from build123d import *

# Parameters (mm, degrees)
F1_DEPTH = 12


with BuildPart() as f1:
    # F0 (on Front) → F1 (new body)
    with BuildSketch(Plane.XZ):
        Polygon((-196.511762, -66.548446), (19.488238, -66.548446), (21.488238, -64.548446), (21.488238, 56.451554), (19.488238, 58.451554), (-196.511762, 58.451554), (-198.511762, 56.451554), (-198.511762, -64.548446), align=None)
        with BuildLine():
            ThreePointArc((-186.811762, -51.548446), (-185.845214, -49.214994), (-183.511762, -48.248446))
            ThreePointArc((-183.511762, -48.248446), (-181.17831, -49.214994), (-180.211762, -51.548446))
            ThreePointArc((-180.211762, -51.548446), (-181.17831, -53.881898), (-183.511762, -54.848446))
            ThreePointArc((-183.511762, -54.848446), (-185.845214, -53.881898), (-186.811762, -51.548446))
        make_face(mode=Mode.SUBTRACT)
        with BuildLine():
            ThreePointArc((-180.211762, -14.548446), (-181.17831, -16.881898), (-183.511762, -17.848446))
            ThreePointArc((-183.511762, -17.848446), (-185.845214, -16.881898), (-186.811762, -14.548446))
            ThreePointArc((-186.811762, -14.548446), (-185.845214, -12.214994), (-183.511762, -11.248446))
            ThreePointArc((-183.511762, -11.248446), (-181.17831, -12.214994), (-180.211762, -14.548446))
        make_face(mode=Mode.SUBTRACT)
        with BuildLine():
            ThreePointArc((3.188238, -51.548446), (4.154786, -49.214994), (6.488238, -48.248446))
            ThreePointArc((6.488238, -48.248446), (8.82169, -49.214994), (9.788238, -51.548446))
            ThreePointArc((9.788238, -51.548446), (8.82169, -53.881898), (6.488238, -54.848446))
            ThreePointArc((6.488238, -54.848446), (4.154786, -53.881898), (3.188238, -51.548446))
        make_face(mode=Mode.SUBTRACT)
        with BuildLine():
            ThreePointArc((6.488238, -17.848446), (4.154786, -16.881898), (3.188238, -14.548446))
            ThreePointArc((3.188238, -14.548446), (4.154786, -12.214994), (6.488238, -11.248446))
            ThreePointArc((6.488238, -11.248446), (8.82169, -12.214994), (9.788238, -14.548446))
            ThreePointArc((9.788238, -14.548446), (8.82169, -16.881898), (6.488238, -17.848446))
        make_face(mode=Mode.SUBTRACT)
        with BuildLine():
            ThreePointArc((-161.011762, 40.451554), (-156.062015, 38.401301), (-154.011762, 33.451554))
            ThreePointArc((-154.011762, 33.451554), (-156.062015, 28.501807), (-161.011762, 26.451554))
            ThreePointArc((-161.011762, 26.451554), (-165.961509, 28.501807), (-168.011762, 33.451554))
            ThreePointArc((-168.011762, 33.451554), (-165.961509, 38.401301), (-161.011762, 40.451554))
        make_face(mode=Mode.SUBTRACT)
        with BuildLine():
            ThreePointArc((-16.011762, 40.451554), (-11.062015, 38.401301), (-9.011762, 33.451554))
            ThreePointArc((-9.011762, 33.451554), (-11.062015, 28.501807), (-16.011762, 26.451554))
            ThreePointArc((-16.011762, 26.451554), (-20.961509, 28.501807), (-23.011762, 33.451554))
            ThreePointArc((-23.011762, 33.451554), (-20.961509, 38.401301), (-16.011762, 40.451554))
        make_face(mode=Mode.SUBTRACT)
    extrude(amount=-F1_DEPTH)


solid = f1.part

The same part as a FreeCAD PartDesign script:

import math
import FreeCAD as App
import Part
import Sketcher

doc = App.newDocument("Part")
body = doc.addObject("PartDesign::Body", "Body")

# Sketch on XZ plane
sketch1 = body.newObject("Sketcher::SketchObject", "Sketch")
sketch1.AttachmentSupport = (doc.getObject("XZ_Plane"), [""])
sketch1.MapMode = "FlatFace"
sketch1.addGeometry([
    Part.LineSegment(App.Vector(-196.5, -66.5, 0), App.Vector(19.5, -66.5, 0)),  # 0
    Part.LineSegment(App.Vector(19.5, -66.5, 0), App.Vector(21.5, -64.5, 0)),  # 1
    Part.LineSegment(App.Vector(21.5, -64.5, 0), App.Vector(21.5, 56.5, 0)),  # 2
    Part.LineSegment(App.Vector(21.5, 56.5, 0), App.Vector(19.5, 58.5, 0)),  # 3
    Part.LineSegment(App.Vector(19.5, 58.5, 0), App.Vector(-196.5, 58.5, 0)),  # 4
    Part.LineSegment(App.Vector(-196.5, 58.5, 0), App.Vector(-198.5, 56.5, 0)),  # 5
    Part.LineSegment(App.Vector(-198.5, 56.5, 0), App.Vector(-198.5, -64.5, 0)),  # 6
    Part.LineSegment(App.Vector(-198.5, -64.5, 0), App.Vector(-196.5, -66.5, 0)),  # 7
    Part.ArcOfCircle(Part.Circle(App.Vector(-183.5, -51.5, 0), App.Vector(0, 0, 1), 3.3), math.radians(-180), math.radians(-90)),  # 8
    Part.ArcOfCircle(Part.Circle(App.Vector(-183.5, -51.5, 0), App.Vector(0, 0, 1), 3.3), math.radians(90), math.radians(180)),  # 9
    Part.ArcOfCircle(Part.Circle(App.Vector(-183.5, -51.5, 0), App.Vector(0, 0, 1), 3.3), math.radians(0), math.radians(90)),  # 10
    Part.ArcOfCircle(Part.Circle(App.Vector(-183.5, -51.5, 0), App.Vector(0, 0, 1), 3.3), math.radians(-90), math.radians(0)),  # 11
    Part.ArcOfCircle(Part.Circle(App.Vector(-183.5, -14.5, 0), App.Vector(0, 0, 1), 3.3), math.radians(0), math.radians(90)),  # 12
    Part.ArcOfCircle(Part.Circle(App.Vector(-183.5, -14.5, 0), App.Vector(0, 0, 1), 3.3), math.radians(-90), math.radians(0)),  # 13
    Part.ArcOfCircle(Part.Circle(App.Vector(-183.5, -14.5, 0), App.Vector(0, 0, 1), 3.3), math.radians(-180), math.radians(-90)),  # 14
    Part.ArcOfCircle(Part.Circle(App.Vector(-183.5, -14.5, 0), App.Vector(0, 0, 1), 3.3), math.radians(90), math.radians(180)),  # 15
    Part.ArcOfCircle(Part.Circle(App.Vector(6.5, -51.5, 0), App.Vector(0, 0, 1), 3.3), math.radians(-180), math.radians(-90)),  # 16
    Part.ArcOfCircle(Part.Circle(App.Vector(6.5, -51.5, 0), App.Vector(0, 0, 1), 3.3), math.radians(90), math.radians(180)),  # 17
    Part.ArcOfCircle(Part.Circle(App.Vector(6.5, -51.5, 0), App.Vector(0, 0, 1), 3.3), math.radians(0), math.radians(90)),  # 18
    Part.ArcOfCircle(Part.Circle(App.Vector(6.5, -51.5, 0), App.Vector(0, 0, 1), 3.3), math.radians(-90), math.radians(0)),  # 19
    Part.ArcOfCircle(Part.Circle(App.Vector(6.5, -14.5, 0), App.Vector(0, 0, 1), 3.3), math.radians(-90), math.radians(0)),  # 20
    Part.ArcOfCircle(Part.Circle(App.Vector(6.5, -14.5, 0), App.Vector(0, 0, 1), 3.3), math.radians(-180), math.radians(-90)),  # 21
    Part.ArcOfCircle(Part.Circle(App.Vector(6.5, -14.5, 0), App.Vector(0, 0, 1), 3.3), math.radians(90), math.radians(180)),  # 22
    Part.ArcOfCircle(Part.Circle(App.Vector(6.5, -14.5, 0), App.Vector(0, 0, 1), 3.3), math.radians(0), math.radians(90)),  # 23
    Part.ArcOfCircle(Part.Circle(App.Vector(-161, 33.5, 0), App.Vector(0, 0, 1), 7), math.radians(90), math.radians(180)),  # 24
    Part.ArcOfCircle(Part.Circle(App.Vector(-161, 33.5, 0), App.Vector(0, 0, 1), 7), math.radians(0), math.radians(90)),  # 25
    Part.ArcOfCircle(Part.Circle(App.Vector(-161, 33.5, 0), App.Vector(0, 0, 1), 7), math.radians(-90), math.radians(0)),  # 26
    Part.ArcOfCircle(Part.Circle(App.Vector(-161, 33.5, 0), App.Vector(0, 0, 1), 7), math.radians(-180), math.radians(-90)),  # 27
    Part.ArcOfCircle(Part.Circle(App.Vector(-16, 33.5, 0), App.Vector(0, 0, 1), 7), math.radians(90), math.radians(180)),  # 28
    Part.ArcOfCircle(Part.Circle(App.Vector(-16, 33.5, 0), App.Vector(0, 0, 1), 7), math.radians(0), math.radians(90)),  # 29
    Part.ArcOfCircle(Part.Circle(App.Vector(-16, 33.5, 0), App.Vector(0, 0, 1), 7), math.radians(-90), math.radians(0)),  # 30
    Part.ArcOfCircle(Part.Circle(App.Vector(-16, 33.5, 0), App.Vector(0, 0, 1), 7), math.radians(-180), math.radians(-90)),  # 31
], False)
sketch1.addConstraint([
    Sketcher.Constraint("Coincident", 0, 2, 1, 1),
    Sketcher.Constraint("Coincident", 1, 2, 2, 1),
    Sketcher.Constraint("Coincident", 2, 2, 3, 1),
    Sketcher.Constraint("Coincident", 3, 2, 4, 1),
    Sketcher.Constraint("Coincident", 4, 2, 5, 1),
    Sketcher.Constraint("Coincident", 5, 2, 6, 1),
    Sketcher.Constraint("Coincident", 6, 2, 7, 1),
    Sketcher.Constraint("Coincident", 7, 2, 0, 1),
    Sketcher.Constraint("Tangent", 8, 1, 9, 2),
    Sketcher.Constraint("Tangent", 9, 1, 10, 2),
    Sketcher.Constraint("Tangent", 10, 1, 11, 2),
    Sketcher.Constraint("Tangent", 11, 1, 8, 2),
    Sketcher.Constraint("Tangent", 12, 1, 13, 2),
    Sketcher.Constraint("Tangent", 13, 1, 14, 2),
    Sketcher.Constraint("Tangent", 14, 1, 15, 2),
    Sketcher.Constraint("Tangent", 15, 1, 12, 2),
    Sketcher.Constraint("Tangent", 16, 1, 17, 2),
    Sketcher.Constraint("Tangent", 17, 1, 18, 2),
    Sketcher.Constraint("Tangent", 18, 1, 19, 2),
    Sketcher.Constraint("Tangent", 19, 1, 16, 2),
    Sketcher.Constraint("Tangent", 20, 1, 21, 2),
    Sketcher.Constraint("Tangent", 21, 1, 22, 2),
    Sketcher.Constraint("Tangent", 22, 1, 23, 2),
    Sketcher.Constraint("Tangent", 23, 1, 20, 2),
    Sketcher.Constraint("Tangent", 24, 1, 25, 2),
    Sketcher.Constraint("Tangent", 25, 1, 26, 2),
    Sketcher.Constraint("Tangent", 26, 1, 27, 2),
    Sketcher.Constraint("Tangent", 27, 1, 24, 2),
    Sketcher.Constraint("Tangent", 28, 1, 29, 2),
    Sketcher.Constraint("Tangent", 29, 1, 30, 2),
    Sketcher.Constraint("Tangent", 30, 1, 31, 2),
    Sketcher.Constraint("Tangent", 31, 1, 28, 2),
    Sketcher.Constraint("Horizontal", 0),
    Sketcher.Constraint("Vertical", 2),
    Sketcher.Constraint("Horizontal", 4),
    Sketcher.Constraint("Vertical", 6),
    Sketcher.Constraint("Equal", 8, 9),
    Sketcher.Constraint("Equal", 11, 12),
    Sketcher.Constraint("Equal", 12, 13),
    Sketcher.Constraint("Equal", 15, 16),
    Sketcher.Constraint("Equal", 16, 17),
    Sketcher.Constraint("Equal", 19, 20),
    Sketcher.Constraint("Equal", 20, 21),
    Sketcher.Constraint("Equal", 24, 25),
    Sketcher.Constraint("Equal", 27, 28),
    Sketcher.Constraint("Equal", 28, 29),
    Sketcher.Constraint("Perpendicular", 1, 3),
    Sketcher.Constraint("Perpendicular", 3, 5),
    Sketcher.Constraint("Perpendicular", 5, 7),
    Sketcher.Constraint("Horizontal", 11, 3, 16, 3),
    Sketcher.Constraint("Horizontal", 14, 3, 20, 3),
    Sketcher.Constraint("Horizontal", 25, 3, 28, 3),
    Sketcher.Constraint("Horizontal", 2, 2, 5, 2),
    Sketcher.Constraint("Horizontal", 1, 2, 6, 2),
    Sketcher.Constraint("Horizontal", 19, 3, 8, 1),
    Sketcher.Constraint("Horizontal", 8, 1, 10, 1),
    Sketcher.Constraint("Horizontal", 23, 3, 12, 1),
    Sketcher.Constraint("Horizontal", 12, 1, 14, 1),
    Sketcher.Constraint("Horizontal", 10, 1, 16, 1),
    Sketcher.Constraint("Horizontal", 16, 1, 18, 1),
    Sketcher.Constraint("Horizontal", 14, 1, 21, 1),
    Sketcher.Constraint("Horizontal", 21, 1, 23, 1),
    Sketcher.Constraint("Horizontal", 31, 3, 25, 1),
    Sketcher.Constraint("Horizontal", 25, 1, 27, 1),
    Sketcher.Constraint("Horizontal", 27, 1, 29, 1),
    Sketcher.Constraint("Horizontal", 29, 1, 31, 1),
    Sketcher.Constraint("Vertical", 11, 3, 12, 3),
    Sketcher.Constraint("Vertical", 19, 3, 20, 3),
    Sketcher.Constraint("Vertical", 0, 2, 3, 2),
    Sketcher.Constraint("Vertical", 4, 2, 7, 2),
    Sketcher.Constraint("Vertical", 15, 3, 9, 1),
    Sketcher.Constraint("Vertical", 9, 1, 11, 1),
    Sketcher.Constraint("Vertical", 11, 1, 13, 1),
    Sketcher.Constraint("Vertical", 13, 1, 15, 1),
    Sketcher.Constraint("Vertical", 23, 3, 17, 1),
    Sketcher.Constraint("Vertical", 17, 1, 19, 1),
    Sketcher.Constraint("Vertical", 19, 1, 20, 1),
    Sketcher.Constraint("Vertical", 20, 1, 22, 1),
    Sketcher.Constraint("Vertical", 27, 3, 24, 1),
    Sketcher.Constraint("Vertical", 24, 1, 26, 1),
    Sketcher.Constraint("Vertical", 31, 3, 28, 1),
    Sketcher.Constraint("Vertical", 28, 1, 30, 1),
    Sketcher.Constraint("Radius", 24, 7.000002),
    Sketcher.Constraint("Radius", 8, 3.300001),
    Sketcher.Constraint("DistanceX", 0, 1, 0, 2, 216.0),
    Sketcher.Constraint("DistanceY", 2, 1, 2, 2, 121.0),
    Sketcher.Constraint("DistanceY", 10, 3, 12, 3, 37.0),
    Sketcher.Constraint("DistanceX", 8, 3, 16, 3, 190.0),
    Sketcher.Constraint("DistanceY", 15, 3, 24, 3, 48.0),
    Sketcher.Constraint("DistanceX", 17, 3, 0, 2, 12.999999),
    Sketcher.Constraint("DistanceY", 0, 2, 17, 3, 14.999999),
    Sketcher.Constraint("DistanceX", 0, 2, 1, 2, 2.0),
    Sketcher.Constraint("DistanceX", 14, 3, 24, 3, 22.5),
    Sketcher.Constraint("DistanceX", 28, 3, 21, 3, 22.5),
    Sketcher.Constraint("DistanceX", 8, 3, -1, 1, 183.511761),
    Sketcher.Constraint("DistanceY", 8, 3, -1, 1, 51.548445),
])
pad1 = body.newObject("PartDesign::Pad", "Pad")
pad1.Profile = sketch1
pad1.Length = 12
pad1.Reversed = True

doc.recompute()
